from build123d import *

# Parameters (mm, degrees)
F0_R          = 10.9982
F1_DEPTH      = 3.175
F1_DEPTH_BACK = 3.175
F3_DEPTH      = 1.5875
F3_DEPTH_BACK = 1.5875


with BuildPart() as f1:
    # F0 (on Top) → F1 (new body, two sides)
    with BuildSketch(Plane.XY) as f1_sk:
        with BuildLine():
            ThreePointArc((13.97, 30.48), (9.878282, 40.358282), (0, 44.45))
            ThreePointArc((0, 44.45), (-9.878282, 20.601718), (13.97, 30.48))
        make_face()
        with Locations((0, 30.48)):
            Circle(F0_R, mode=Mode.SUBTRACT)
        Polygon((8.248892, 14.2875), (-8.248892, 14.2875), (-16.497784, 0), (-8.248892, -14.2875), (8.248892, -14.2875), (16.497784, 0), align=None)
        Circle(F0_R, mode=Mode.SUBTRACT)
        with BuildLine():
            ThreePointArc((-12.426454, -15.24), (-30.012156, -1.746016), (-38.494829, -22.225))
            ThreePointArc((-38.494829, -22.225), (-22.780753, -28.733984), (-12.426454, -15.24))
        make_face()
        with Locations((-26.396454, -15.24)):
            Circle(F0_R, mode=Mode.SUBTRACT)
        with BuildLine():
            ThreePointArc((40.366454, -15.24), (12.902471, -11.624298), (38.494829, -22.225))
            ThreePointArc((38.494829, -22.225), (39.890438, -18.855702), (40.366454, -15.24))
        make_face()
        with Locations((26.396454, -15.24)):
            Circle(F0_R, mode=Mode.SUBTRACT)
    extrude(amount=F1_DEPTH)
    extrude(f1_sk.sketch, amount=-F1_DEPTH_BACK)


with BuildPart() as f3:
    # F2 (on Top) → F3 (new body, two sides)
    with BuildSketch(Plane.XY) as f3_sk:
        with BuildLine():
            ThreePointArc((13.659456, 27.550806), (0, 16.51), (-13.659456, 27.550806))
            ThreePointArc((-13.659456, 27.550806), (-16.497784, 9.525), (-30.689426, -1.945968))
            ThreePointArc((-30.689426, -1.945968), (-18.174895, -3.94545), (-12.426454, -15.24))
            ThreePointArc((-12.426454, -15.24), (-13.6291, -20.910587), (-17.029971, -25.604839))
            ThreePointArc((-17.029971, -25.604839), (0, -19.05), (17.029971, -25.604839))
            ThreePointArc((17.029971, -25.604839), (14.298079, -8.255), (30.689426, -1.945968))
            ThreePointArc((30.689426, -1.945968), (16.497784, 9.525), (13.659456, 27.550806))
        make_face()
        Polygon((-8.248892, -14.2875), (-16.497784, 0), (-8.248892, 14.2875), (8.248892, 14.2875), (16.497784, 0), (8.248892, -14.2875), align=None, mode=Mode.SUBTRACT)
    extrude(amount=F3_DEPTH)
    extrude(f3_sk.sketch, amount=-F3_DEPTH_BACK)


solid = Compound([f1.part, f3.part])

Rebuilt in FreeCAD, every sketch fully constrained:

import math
import FreeCAD as App
import Part
import Sketcher
Q = App.Units.Quantity


def add_polygon(sketch, points):
    """Adds a closed chain of lines whose ends are joined by coincident constraints."""
    first, n = sketch.GeometryCount, len(points)
    for a, b in zip(points, points[1:] + points[:1]):
        sketch.addGeometry(Part.LineSegment(App.Vector(*a, 0), App.Vector(*b, 0)), False)
    for i in range(n):
        sketch.addConstraint(Sketcher.Constraint("Coincident", first + i, 2, first + (i + 1) % n, 1))

doc = App.newDocument("Part")
body = doc.addObject("PartDesign::Body", "Body")
body.AllowCompound = True

# Sketch on XY plane
sketch1 = body.newObject("Sketcher::SketchObject", "Sketch")
sketch1.AttachmentSupport = (doc.getObject("XY_Plane"), [""])
sketch1.MapMode = "FlatFace"
sketch1.addGeometry(Part.ArcOfCircle(Part.Circle(App.Vector(0, 30, 0), App.Vector(0, 0, 1), 14), math.radians(0), math.radians(90)), False)  # 0
sketch1.addGeometry(Part.ArcOfCircle(Part.Circle(App.Vector(0, 30, 0), App.Vector(0, 0, 1), 14), math.radians(90), math.radians(360)), False)  # 1
sketch1.addGeometry(Part.Circle(App.Vector(0, 30, 0), App.Vector(0, 0, 1), 11), False)  # 2
add_polygon(sketch1, [(8, 14), (-8, 14), (-16, 0), (-8, -14), (8, -14), (16, 0)])  # lines 3-8
sketch1.addGeometry(Part.Circle(App.Vector(0, 0, 0), App.Vector(0, 0, 1), 11), False)  # 9
sketch1.addGeometry(Part.ArcOfCircle(Part.Circle(App.Vector(-26, -15, 0), App.Vector(0, 0, 1), 14), math.radians(0), math.radians(210)), False)  # 10
sketch1.addGeometry(Part.ArcOfCircle(Part.Circle(App.Vector(-26, -15, 0), App.Vector(0, 0, 1), 14), math.radians(-150), math.radians(0)), False)  # 11
sketch1.addGeometry(Part.Circle(App.Vector(-26, -15, 0), App.Vector(0, 0, 1), 11), False)  # 12
sketch1.addGeometry(Part.ArcOfCircle(Part.Circle(App.Vector(26, -15, 0), App.Vector(0, 0, 1), 14), math.radians(0), math.radians(330)), False)  # 13
sketch1.addGeometry(Part.ArcOfCircle(Part.Circle(App.Vector(26, -15, 0), App.Vector(0, 0, 1), 14), math.radians(-30), math.radians(0)), False)  # 14
sketch1.addGeometry(Part.Circle(App.Vector(26, -15, 0), App.Vector(0, 0, 1), 11), False)  # 15
sketch1.addConstraint(Sketcher.Constraint("Tangent", 0, 1, 1, 2))
sketch1.addConstraint(Sketcher.Constraint("Coincident", 1, 1, 0, 2))
sketch1.addConstraint(Sketcher.Constraint("Tangent", 10, 1, 11, 2))
sketch1.addConstraint(Sketcher.Constraint("Coincident", 11, 1, 10, 2))
sketch1.addConstraint(Sketcher.Constraint("Tangent", 13, 1, 14, 2))
sketch1.addConstraint(Sketcher.Constraint("Coincident", 14, 1, 13, 2))
sketch1.addConstraint(Sketcher.Constraint("Horizontal", 3))
sketch1.addConstraint(Sketcher.Constraint("Horizontal", 6))
sketch1.addConstraint(Sketcher.Constraint("Coincident", 9, 3, -1, 1))
sketch1.addConstraint(Sketcher.Constraint("Coincident", 2, 3, 0, 3))
sketch1.addConstraint(Sketcher.Constraint("Coincident", 12, 3, 10, 3))
sketch1.addConstraint(Sketcher.Constraint("Coincident", 15, 3, 13, 3))
sketch1.addConstraint(Sketcher.Constraint("Equal", 2, 9))
sketch1.addConstraint(Sketcher.Constraint("Equal", 1, 10))
sketch1.addConstraint(Sketcher.Constraint("Equal", 9, 12))
sketch1.addConstraint(Sketcher.Constraint("Equal", 11, 13))
sketch1.addConstraint(Sketcher.Constraint("Equal", 12, 15))
sketch1.addConstraint(Sketcher.Constraint("Symmetric", 3, 2, 6, 2, -1, 1))
sketch1.addConstraint(Sketcher.Constraint("Symmetric", 4, 2, 7, 2, -1, 1))
sketch1.addConstraint(Sketcher.Constraint("Symmetric", 10, 3, 13, 3, -2))
sketch1.addConstraint(Sketcher.Constraint("PointOnObject", 0, 3, -2))
sketch1.addConstraint(Sketcher.Constraint("PointOnObject", 1, 1, -2))
sketch1.addConstraint(Sketcher.Constraint("PointOnObject", 4, 2, -1))
sketch1.addConstraint(Sketcher.Constraint("Parallel", 5, 8))
sketch1.addConstraint(Sketcher.Constraint("Horizontal", 2, 3, 0, 1))
sketch1.addConstraint(Sketcher.Constraint("Horizontal", 15, 3, 10, 1))
sketch1.addConstraint(Sketcher.Constraint("Horizontal", 10, 1, 13, 1))
sketch1.addConstraint(Sketcher.Constraint("Horizontal", 11, 1, 14, 1))
sketch1.addConstraint(Sketcher.Constraint("Vertical", 3, 2, 5, 2))
sketch1.addConstraint(Sketcher.Constraint("Radius", 0, Q("0.55 in")))
sketch1.addConstraint(Sketcher.Constraint("Diameter", 2, Q("0.866 in")))
sketch1.addConstraint(Sketcher.Constraint("Angle", 4, Q("-120 deg")))
sketch1.addConstraint(Sketcher.Constraint("DistanceY", -1, 1, 0, 3, Q("1.2 in")))
sketch1.addConstraint(Sketcher.Constraint("DistanceY", 10, 3, -1, 1, Q("0.6 in")))
sketch1.addConstraint(Sketcher.Constraint("DistanceY", -1, 1, 3, 2, Q("0.5625 in")))
sketch1.addConstraint(Sketcher.Constraint("DistanceY", 11, 1, -1, 1, Q("0.875 in")))
sketch1.addConstraint(Sketcher.Constraint("DistanceX", 3, 2, 3, 1, Q("16.497784 mm")))
sketch1.addConstraint(Sketcher.Constraint("DistanceX", 11, 1, -1, 1, Q("38.494829 mm")))
pad1 = body.newObject("PartDesign::Pad", "Pad")
pad1.Profile = sketch1
pad1.Type = "TwoLengths"
pad1.Length = Q("0.125 in")
pad1.Length2 = Q("0.125 in")
body2 = doc.addObject("PartDesign::Body", "Body001")

# Sketch on XY plane
sketch2 = body2.newObject("Sketcher::SketchObject", "Sketch001")
sketch2.AttachmentSupport = (doc.getObject("XY_Plane001"), [""])
sketch2.MapMode = "FlatFace"
sketch2.addGeometry(Part.ArcOfCircle(Part.Circle(App.Vector(0, 30, 0), App.Vector(0, 0, 1), 14), math.radians(-168), math.radians(-12)), False)  # 0
sketch2.addGeometry(Part.ArcOfCircle(Part.Circle(App.Vector(-38, 22, 0), App.Vector(0, 0, 1), 25), math.radians(-72), math.radians(12)), False)  # 1
sketch2.addGeometry(Part.ArcOfCircle(Part.Circle(App.Vector(-26, -15, 0), App.Vector(0, 0, 1), 14), math.radians(0), math.radians(108)), False)  # 2
sketch2.addGeometry(Part.ArcOfCircle(Part.Circle(App.Vector(-26, -15, 0), App.Vector(0, 0, 1), 14), math.radians(-48), math.radians(0)), False)  # 3
sketch2.addGeometry(Part.ArcOfCircle(Part.Circle(App.Vector(0, -44, 0), App.Vector(0, 0, 1), 25), math.radians(48), math.radians(132)), False)  # 4
sketch2.addGeometry(Part.ArcOfCircle(Part.Circle(App.Vector(26, -15, 0), App.Vector(0, 0, 1), 14), math.radians(72), math.radians(228)), False)  # 5
sketch2.addGeometry(Part.ArcOfCircle(Part.Circle(App.Vector(38, 22, 0), App.Vector(0, 0, 1), 25), math.radians(168), math.radians(252)), False)  # 6
add_polygon(sketch2, [(8, -14), (-8, -14), (-16, 0), (-8, 14), (8, 14), (16, 0)])  # lines 7-12
sketch2.addConstraint(Sketcher.Constraint("Tangent", 0, 1, 1, 2))
sketch2.addConstraint(Sketcher.Constraint("Tangent", 1, 1, 2, 2))
sketch2.addConstraint(Sketcher.Constraint("Tangent", 2, 1, 3, 2))
sketch2.addConstraint(Sketcher.Constraint("Tangent", 3, 1, 4, 2))
sketch2.addConstraint(Sketcher.Constraint("Tangent", 4, 1, 5, 2))
sketch2.addConstraint(Sketcher.Constraint("Tangent", 5, 1, 6, 2))
sketch2.addConstraint(Sketcher.Constraint("Tangent", 6, 1, 0, 2))
sketch2.addConstraint(Sketcher.Constraint("Horizontal", 7))
sketch2.addConstraint(Sketcher.Constraint("Horizontal", 10))
sketch2.addConstraint(Sketcher.Constraint("Equal", 0, 2))
sketch2.addConstraint(Sketcher.Constraint("Equal", 1, 4))
sketch2.addConstraint(Sketcher.Constraint("Equal", 2, 5))
sketch2.addConstraint(Sketcher.Constraint("Equal", 4, 6))
sketch2.addConstraint(Sketcher.Constraint("Symmetric", 7, 2, 10, 2, -1, 1))
sketch2.addConstraint(Sketcher.Constraint("Symmetric", 8, 2, 11, 2, -1, 1))
sketch2.addConstraint(Sketcher.Constraint("Symmetric", 2, 3, 5, 3, -2))
sketch2.addConstraint(Sketcher.Constraint("PointOnObject", 0, 3, -2))
sketch2.addConstraint(Sketcher.Constraint("PointOnObject", 4, 3, -2))
sketch2.addConstraint(Sketcher.Constraint("PointOnObject", 8, 2, -1))
sketch2.addConstraint(Sketcher.Constraint("Parallel", 9, 12))
sketch2.addConstraint(Sketcher.Constraint("Horizontal", 5, 3, 2, 1))
sketch2.addConstraint(Sketcher.Constraint("Vertical", 7, 2, 9, 2))
sketch2.addConstraint(Sketcher.Constraint("Radius", 1, Q("1 in")))
sketch2.addConstraint(Sketcher.Constraint("Radius", 0, Q("0.55 in")))
sketch2.addConstraint(Sketcher.Constraint("Angle", 8, Q("120 deg")))
sketch2.addConstraint(Sketcher.Constraint("DistanceY", -1, 1, 0, 3, Q("1.2 in")))
sketch2.addConstraint(Sketcher.Constraint("DistanceY", 2, 3, -1, 1, Q("0.6 in")))
sketch2.addConstraint(Sketcher.Constraint("DistanceY", 4, 3, -1, 1, Q("1.75 in")))
sketch2.addConstraint(Sketcher.Constraint("DistanceY", 7, 2, -1, 1, Q("0.5625 in")))
sketch2.addConstraint(Sketcher.Constraint("DistanceX", 7, 2, 7, 1, Q("16.497784 mm")))
pad2 = body2.newObject("PartDesign::Pad", "Pad001")
pad2.Profile = sketch2
pad2.Type = "TwoLengths"
pad2.Length = Q("0.0625 in")
pad2.Length2 = Q("0.0625 in")

doc.recompute()
